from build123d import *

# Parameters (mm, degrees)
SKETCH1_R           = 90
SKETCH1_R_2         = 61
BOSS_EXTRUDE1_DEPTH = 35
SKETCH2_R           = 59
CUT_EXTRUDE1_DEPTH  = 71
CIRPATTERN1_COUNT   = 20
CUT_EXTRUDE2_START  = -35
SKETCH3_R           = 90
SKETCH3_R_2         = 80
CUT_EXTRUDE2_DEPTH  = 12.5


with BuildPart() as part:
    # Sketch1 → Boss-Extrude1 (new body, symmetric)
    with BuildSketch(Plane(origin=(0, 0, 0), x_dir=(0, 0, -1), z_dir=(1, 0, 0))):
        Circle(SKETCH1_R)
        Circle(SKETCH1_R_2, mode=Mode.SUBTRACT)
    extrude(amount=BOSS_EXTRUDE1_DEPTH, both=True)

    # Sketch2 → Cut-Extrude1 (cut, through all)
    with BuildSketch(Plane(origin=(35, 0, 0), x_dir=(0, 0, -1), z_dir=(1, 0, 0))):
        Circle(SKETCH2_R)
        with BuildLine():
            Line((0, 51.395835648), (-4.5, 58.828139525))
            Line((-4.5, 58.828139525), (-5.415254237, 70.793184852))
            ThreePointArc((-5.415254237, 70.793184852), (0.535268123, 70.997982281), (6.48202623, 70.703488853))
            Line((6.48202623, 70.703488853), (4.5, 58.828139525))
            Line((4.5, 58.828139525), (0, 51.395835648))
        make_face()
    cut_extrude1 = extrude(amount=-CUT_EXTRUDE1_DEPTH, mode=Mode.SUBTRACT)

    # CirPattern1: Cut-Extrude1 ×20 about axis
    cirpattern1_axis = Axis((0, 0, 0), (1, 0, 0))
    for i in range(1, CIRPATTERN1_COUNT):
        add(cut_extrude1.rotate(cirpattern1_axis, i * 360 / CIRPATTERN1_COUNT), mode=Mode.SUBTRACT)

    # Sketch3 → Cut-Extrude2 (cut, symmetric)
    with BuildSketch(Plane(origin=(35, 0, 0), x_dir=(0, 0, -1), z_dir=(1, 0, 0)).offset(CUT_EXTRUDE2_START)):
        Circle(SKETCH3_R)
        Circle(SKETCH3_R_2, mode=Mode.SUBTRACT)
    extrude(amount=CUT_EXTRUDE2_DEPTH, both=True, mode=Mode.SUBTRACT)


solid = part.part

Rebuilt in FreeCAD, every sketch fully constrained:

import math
import FreeCAD as App
import Part
import Sketcher
from FreeCAD import Vector

doc = App.newDocument("Part")
body = doc.addObject("PartDesign::Body", "Body")

sketch1 = doc.addObject("Sketcher::SketchObject", "Sketch")
body.addObject(sketch1)
sketch1.AttachmentSupport = (doc.YZ_Plane, [""])
sketch1.MapMode = "FlatFace"
sketch1.addGeometry(Part.Circle(Vector(0, 0, 0), Vector(0, 0, 1), 90), False)
sketch1.addGeometry(Part.Circle(Vector(0, 0, 0), Vector(0, 0, 1), 61), False)
sketch1.addConstraint(Sketcher.Constraint("Coincident", 0, 3, -1, 1))
sketch1.addConstraint(Sketcher.Constraint("Coincident", 1, 3, -1, 1))
sketch1.addConstraint(Sketcher.Constraint("Diameter", 0, 180.0))
sketch1.addConstraint(Sketcher.Constraint("Diameter", 1, 122.0))
pad1 = doc.addObject("PartDesign::Pad", "Pad")
body.addObject(pad1)
pad1.Profile = sketch1
pad1.Length = 70
pad1.Midplane = True

sketch2 = doc.addObject("Sketcher::SketchObject", "Sketch001")
body.addObject(sketch2)
sketch2.AttachmentSupport = (doc.YZ_Plane, [""])
sketch2.MapMode = "FlatFace"
sketch2.AttachmentOffset = App.Placement(Vector(0, 0, 35), App.Rotation())
sketch2.addGeometry(Part.ArcOfCircle(Part.Circle(Vector(0, 0, 0), Vector(0, 0, 1), 59), math.radians(4), math.radians(356)), False)
sketch2.addGeometry(Part.LineSegment(Vector(59, -4, 0), Vector(71, -6, 0)), False)
sketch2.addGeometry(Part.ArcOfCircle(Part.Circle(Vector(0, 0, 0), Vector(0, 0, 1), 71), math.radians(-5.24), math.radians(4.37)), False)
sketch2.addGeometry(Part.LineSegment(Vector(71, 5, 0), Vector(59, 4, 0)), False)
sketch2.addConstraint(Sketcher.Constraint("Coincident", 0, 2, 1, 1))
sketch2.addConstraint(Sketcher.Constraint("Coincident", 1, 2, 2, 1))
sketch2.addConstraint(Sketcher.Constraint("Coincident", 2, 2, 3, 1))
sketch2.addConstraint(Sketcher.Constraint("Coincident", 3, 2, 0, 1))
sketch2.addConstraint(Sketcher.Constraint("Coincident", 0, 3, -1, 1))
sketch2.addConstraint(Sketcher.Constraint("Coincident", 2, 3, -1, 1))
sketch2.addConstraint(Sketcher.Constraint("Vertical", 0, 2, 3, 2))
sketch2.addConstraint(Sketcher.Constraint("Radius", 0, 59.0))
sketch2.addConstraint(Sketcher.Constraint("Radius", 2, 71.0))
sketch2.addConstraint(Sketcher.Constraint("DistanceY", 0, 2, 3, 2, 9.0))
sketch2.addConstraint(Sketcher.Constraint("DistanceX", -1, 1, 1, 2, 70.703489))
sketch2.addConstraint(Sketcher.Constraint("DistanceY", 1, 2, 2, 2, 11.89728))
pocket1 = doc.addObject("PartDesign::Pocket", "Pocket")
body.addObject(pocket1)
pocket1.Profile = sketch2
pocket1.Type = "ThroughAll"
doc.recompute()

polarpattern = doc.addObject("PartDesign::PolarPattern", "PolarPattern")
body.addObject(polarpattern)
polarpattern.Originals = [pocket1]
polarpattern.Axis = (doc.X_Axis, [""])
polarpattern.Angle = 360
polarpattern.Occurrences = 20
body.Tip = polarpattern

sketch3 = doc.addObject("Sketcher::SketchObject", "Sketch002")
body.addObject(sketch3)
sketch3.AttachmentSupport = (doc.YZ_Plane, [""])
sketch3.MapMode = "FlatFace"
sketch3.addGeometry(Part.Circle(Vector(0, 0, 0), Vector(0, 0, 1), 90), False)
sketch3.addGeometry(Part.Circle(Vector(0, 0, 0), Vector(0, 0, 1), 80), False)
sketch3.addConstraint(Sketcher.Constraint("Coincident", 0, 3, -1, 1))
sketch3.addConstraint(Sketcher.Constraint("Coincident", 1, 3, -1, 1))
sketch3.addConstraint(Sketcher.Constraint("Diameter", 0, 180.0))
sketch3.addConstraint(Sketcher.Constraint("Diameter", 1, 160.0))
pocket2 = doc.addObject("PartDesign::Pocket", "Pocket001")
body.addObject(pocket2)
pocket2.Profile = sketch3
pocket2.Length = 25
pocket2.Midplane = True

doc.recompute()
